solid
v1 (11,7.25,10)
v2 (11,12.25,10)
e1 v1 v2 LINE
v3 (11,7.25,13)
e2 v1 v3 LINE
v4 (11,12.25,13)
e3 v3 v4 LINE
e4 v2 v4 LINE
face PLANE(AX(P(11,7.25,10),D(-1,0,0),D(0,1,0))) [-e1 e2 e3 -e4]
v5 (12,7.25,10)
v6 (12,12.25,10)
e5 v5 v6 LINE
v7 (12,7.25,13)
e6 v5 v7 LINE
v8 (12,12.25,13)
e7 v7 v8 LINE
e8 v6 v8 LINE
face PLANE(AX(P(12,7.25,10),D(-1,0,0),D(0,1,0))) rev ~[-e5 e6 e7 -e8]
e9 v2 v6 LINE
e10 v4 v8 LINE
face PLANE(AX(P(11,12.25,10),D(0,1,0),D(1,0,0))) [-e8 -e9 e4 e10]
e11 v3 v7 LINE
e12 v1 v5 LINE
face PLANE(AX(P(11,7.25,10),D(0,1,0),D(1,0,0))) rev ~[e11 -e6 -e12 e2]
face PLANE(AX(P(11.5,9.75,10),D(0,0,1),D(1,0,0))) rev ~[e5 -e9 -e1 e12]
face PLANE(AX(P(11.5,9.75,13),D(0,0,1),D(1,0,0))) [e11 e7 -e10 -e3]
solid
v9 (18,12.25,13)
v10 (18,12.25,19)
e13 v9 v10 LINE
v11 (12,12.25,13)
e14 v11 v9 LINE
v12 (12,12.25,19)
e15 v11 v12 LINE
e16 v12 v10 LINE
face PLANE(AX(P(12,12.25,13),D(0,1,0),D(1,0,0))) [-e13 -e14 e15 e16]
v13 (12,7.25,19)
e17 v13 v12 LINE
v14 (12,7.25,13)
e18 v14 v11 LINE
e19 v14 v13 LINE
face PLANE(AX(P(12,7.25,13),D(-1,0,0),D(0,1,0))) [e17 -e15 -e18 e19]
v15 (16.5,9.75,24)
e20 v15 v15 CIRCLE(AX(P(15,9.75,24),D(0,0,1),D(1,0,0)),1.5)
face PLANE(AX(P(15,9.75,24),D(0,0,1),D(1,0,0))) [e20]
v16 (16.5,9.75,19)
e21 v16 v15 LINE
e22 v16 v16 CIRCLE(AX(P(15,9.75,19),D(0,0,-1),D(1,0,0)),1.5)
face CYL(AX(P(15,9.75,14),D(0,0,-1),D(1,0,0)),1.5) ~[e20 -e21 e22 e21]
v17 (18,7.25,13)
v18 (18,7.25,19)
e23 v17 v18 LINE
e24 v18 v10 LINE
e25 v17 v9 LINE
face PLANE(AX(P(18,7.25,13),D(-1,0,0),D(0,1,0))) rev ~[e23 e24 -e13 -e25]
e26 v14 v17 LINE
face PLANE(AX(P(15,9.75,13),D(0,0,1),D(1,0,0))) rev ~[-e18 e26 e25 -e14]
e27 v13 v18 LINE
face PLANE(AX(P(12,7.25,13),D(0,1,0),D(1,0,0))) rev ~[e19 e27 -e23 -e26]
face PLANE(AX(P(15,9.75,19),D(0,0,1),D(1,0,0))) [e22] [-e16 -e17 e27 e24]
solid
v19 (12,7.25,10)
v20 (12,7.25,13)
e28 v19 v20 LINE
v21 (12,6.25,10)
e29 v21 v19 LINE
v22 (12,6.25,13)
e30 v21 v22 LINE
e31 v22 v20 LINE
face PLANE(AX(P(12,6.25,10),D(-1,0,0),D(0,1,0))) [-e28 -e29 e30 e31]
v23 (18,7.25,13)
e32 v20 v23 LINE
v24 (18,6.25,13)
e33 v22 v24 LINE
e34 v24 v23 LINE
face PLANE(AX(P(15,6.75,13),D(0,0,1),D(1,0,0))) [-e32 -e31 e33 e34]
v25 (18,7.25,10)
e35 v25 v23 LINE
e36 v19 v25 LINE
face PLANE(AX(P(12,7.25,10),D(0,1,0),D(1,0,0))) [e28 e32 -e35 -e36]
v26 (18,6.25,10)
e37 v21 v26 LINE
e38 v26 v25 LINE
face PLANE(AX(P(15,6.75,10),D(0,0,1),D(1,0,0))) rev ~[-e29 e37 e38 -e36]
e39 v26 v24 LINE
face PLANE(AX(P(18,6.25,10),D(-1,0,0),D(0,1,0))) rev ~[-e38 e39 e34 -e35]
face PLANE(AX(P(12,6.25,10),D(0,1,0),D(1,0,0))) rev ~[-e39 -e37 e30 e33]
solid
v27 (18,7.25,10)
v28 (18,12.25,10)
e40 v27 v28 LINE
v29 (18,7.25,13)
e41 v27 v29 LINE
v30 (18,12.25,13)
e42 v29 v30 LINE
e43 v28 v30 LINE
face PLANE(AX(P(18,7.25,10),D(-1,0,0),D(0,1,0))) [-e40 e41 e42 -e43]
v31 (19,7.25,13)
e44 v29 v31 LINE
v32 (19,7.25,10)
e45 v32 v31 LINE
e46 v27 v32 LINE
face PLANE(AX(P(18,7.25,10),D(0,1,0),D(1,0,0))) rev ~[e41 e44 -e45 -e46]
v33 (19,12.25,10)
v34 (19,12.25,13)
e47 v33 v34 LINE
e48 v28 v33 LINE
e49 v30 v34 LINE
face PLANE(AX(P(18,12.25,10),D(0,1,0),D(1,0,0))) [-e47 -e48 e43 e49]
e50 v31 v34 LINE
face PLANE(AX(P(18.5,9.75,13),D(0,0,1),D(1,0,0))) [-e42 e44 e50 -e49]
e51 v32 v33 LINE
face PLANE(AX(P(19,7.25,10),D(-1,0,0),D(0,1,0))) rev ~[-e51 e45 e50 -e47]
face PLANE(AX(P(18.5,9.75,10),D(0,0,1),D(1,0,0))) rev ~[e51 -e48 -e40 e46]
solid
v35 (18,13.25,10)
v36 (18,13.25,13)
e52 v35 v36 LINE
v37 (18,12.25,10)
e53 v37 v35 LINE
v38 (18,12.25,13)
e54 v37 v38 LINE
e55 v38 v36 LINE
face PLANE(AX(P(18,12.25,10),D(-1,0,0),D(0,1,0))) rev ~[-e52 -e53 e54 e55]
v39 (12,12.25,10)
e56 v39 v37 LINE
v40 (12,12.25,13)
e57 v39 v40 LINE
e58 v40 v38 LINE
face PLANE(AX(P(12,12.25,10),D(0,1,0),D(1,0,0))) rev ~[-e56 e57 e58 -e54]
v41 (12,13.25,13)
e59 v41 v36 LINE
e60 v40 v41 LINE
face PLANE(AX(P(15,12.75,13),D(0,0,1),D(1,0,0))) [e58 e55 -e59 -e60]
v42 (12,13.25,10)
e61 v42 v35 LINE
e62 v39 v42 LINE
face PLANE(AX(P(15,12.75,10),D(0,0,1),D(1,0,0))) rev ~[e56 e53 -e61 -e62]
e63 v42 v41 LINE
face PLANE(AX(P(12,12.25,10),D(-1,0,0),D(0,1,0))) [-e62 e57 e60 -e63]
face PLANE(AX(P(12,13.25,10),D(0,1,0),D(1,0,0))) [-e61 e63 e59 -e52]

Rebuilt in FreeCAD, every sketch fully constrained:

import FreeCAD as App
import Part
import Sketcher
from FreeCAD import Vector
Q = App.Units.Quantity

doc = App.newDocument("Part")
body = doc.addObject("PartDesign::Body", "Body")

sketch1 = body.newObject("Sketcher::SketchObject", "Sketch")
sketch1.AttachmentSupport = (doc.getObject("XY_Plane"), [""])
sketch1.MapMode = "FlatFace"
sketch1.AttachmentOffset = App.Placement(Vector(0, 0, 10), App.Rotation())
sketch1.addGeometry(Part.Circle(Vector(15, 9.8, 0), Vector(0, 0, 1), 1.5), False)
sketch1.addConstraint([
    Sketcher.Constraint("Diameter", 0, Q("3 mm")),
    Sketcher.Constraint("DistanceX", -1, 1, 0, 3, Q("15 mm")),
    Sketcher.Constraint("DistanceY", -1, 1, 0, 3, Q("9.75 mm")),
])
pad1 = body.newObject("PartDesign::Pad", "Pad")
pad1.Profile = sketch1
pad1.Length = 10
body2 = doc.addObject("PartDesign::Body", "Body001")

sketch2 = body2.newObject("Sketcher::SketchObject", "Sketch001")
sketch2.AttachmentSupport = (doc.getObject("XY_Plane001"), [""])
sketch2.MapMode = "FlatFace"
sketch2.AttachmentOffset = App.Placement(Vector(0, 0, 6), App.Rotation())
sketch2.addGeometry([
    Part.LineSegment(Vector(11, 12.2, 0), Vector(11, 7.2, 0)),
    Part.LineSegment(Vector(11, 7.2, 0), Vector(12, 7.2, 0)),
    Part.LineSegment(Vector(12, 7.2, 0), Vector(12, 12.2, 0)),
    Part.LineSegment(Vector(12, 12.2, 0), Vector(11, 12.2, 0)),
], False)
sketch2.addConstraint([
    Sketcher.Constraint("Coincident", 0, 2, 1, 1),
    Sketcher.Constraint("Coincident", 1, 2, 2, 1),
    Sketcher.Constraint("Coincident", 2, 2, 3, 1),
    Sketcher.Constraint("Coincident", 3, 2, 0, 1),
    Sketcher.Constraint("Vertical", 0),
    Sketcher.Constraint("Horizontal", 1),
    Sketcher.Constraint("Vertical", 2),
    Sketcher.Constraint("Horizontal", 3),
    Sketcher.Constraint("DistanceX", 1, 1, 1, 2, Q("1 mm")),
    Sketcher.Constraint("DistanceY", 0, 2, 0, 1, Q("5 mm")),
    Sketcher.Constraint("DistanceX", -1, 1, 0, 2, Q("11 mm")),
    Sketcher.Constraint("DistanceY", -1, 1, 0, 2, Q("7.25 mm")),
])
pad2 = body2.newObject("PartDesign::Pad", "Pad001")
pad2.Profile = sketch2
pad2.Length = 3
body3 = doc.addObject("PartDesign::Body", "Body002")

sketch3 = body3.newObject("Sketcher::SketchObject", "Sketch002")
sketch3.AttachmentSupport = (doc.getObject("XY_Plane002"), [""])
sketch3.MapMode = "FlatFace"
sketch3.AttachmentOffset = App.Placement(Vector(0, 0, 6), App.Rotation())
sketch3.addGeometry([
    Part.LineSegment(Vector(18, 12.2, 0), Vector(18, 7.2, 0)),
    Part.LineSegment(Vector(18, 7.2, 0), Vector(19, 7.2, 0)),
    Part.LineSegment(Vector(19, 7.2, 0), Vector(19, 12.2, 0)),
    Part.LineSegment(Vector(19, 12.2, 0), Vector(18, 12.2, 0)),
], False)
sketch3.addConstraint([
    Sketcher.Constraint("Coincident", 0, 2, 1, 1),
    Sketcher.Constraint("Coincident", 1, 2, 2, 1),
    Sketcher.Constraint("Coincident", 2, 2, 3, 1),
    Sketcher.Constraint("Coincident", 3, 2, 0, 1),
    Sketcher.Constraint("Vertical", 0),
    Sketcher.Constraint("Horizontal", 1),
    Sketcher.Constraint("Vertical", 2),
    Sketcher.Constraint("Horizontal", 3),
    Sketcher.Constraint("DistanceX", 1, 1, 1, 2, Q("1 mm")),
    Sketcher.Constraint("DistanceY", 0, 2, 0, 1, Q("5 mm")),
    Sketcher.Constraint("DistanceX", -1, 1, 0, 2, Q("18 mm")),
    Sketcher.Constraint("DistanceY", -1, 1, 0, 2, Q("7.25 mm")),
])
pad3 = body3.newObject("PartDesign::Pad", "Pad002")
pad3.Profile = sketch3
pad3.Length = 3
body4 = doc.addObject("PartDesign::Body", "Body003")

sketch4 = body4.newObject("Sketcher::SketchObject", "Sketch003")
sketch4.AttachmentSupport = (doc.getObject("XY_Plane003"), [""])
sketch4.MapMode = "FlatFace"
sketch4.AttachmentOffset = App.Placement(Vector(0, 0, 6), App.Rotation())
sketch4.addGeometry([
    Part.LineSegment(Vector(12, 7.2, 0), Vector(12, 6.2, 0)),
    Part.LineSegment(Vector(12, 6.2, 0), Vector(18, 6.2, 0)),
    Part.LineSegment(Vector(18, 6.2, 0), Vector(18, 7.2, 0)),
    Part.LineSegment(Vector(18, 7.2, 0), Vector(12, 7.2, 0)),
], False)
sketch4.addConstraint([
    Sketcher.Constraint("Coincident", 0, 2, 1, 1),
    Sketcher.Constraint("Coincident", 1, 2, 2, 1),
    Sketcher.Constraint("Coincident", 2, 2, 3, 1),
    Sketcher.Constraint("Coincident", 3, 2, 0, 1),
    Sketcher.Constraint("Vertical", 0),
    Sketcher.Constraint("Horizontal", 1),
    Sketcher.Constraint("Vertical", 2),
    Sketcher.Constraint("Horizontal", 3),
    Sketcher.Constraint("DistanceX", 1, 1, 1, 2, Q("6 mm")),
    Sketcher.Constraint("DistanceY", 0, 2, 0, 1, Q("1 mm")),
    Sketcher.Constraint("DistanceX", -1, 1, 0, 2, Q("12 mm")),
    Sketcher.Constraint("DistanceY", -1, 1, 0, 2, Q("6.25 mm")),
])
pad4 = body4.newObject("PartDesign::Pad", "Pad003")
pad4.Profile = sketch4
pad4.Length = 3
body5 = doc.addObject("PartDesign::Body", "Body004")

sketch5 = body5.newObject("Sketcher::SketchObject", "Sketch004")
sketch5.AttachmentSupport = (doc.getObject("XY_Plane004"), [""])
sketch5.MapMode = "FlatFace"
sketch5.AttachmentOffset = App.Placement(Vector(0, 0, 6), App.Rotation())
sketch5.addGeometry([
    Part.LineSegment(Vector(12, 13.2, 0), Vector(12, 12.2, 0)),
    Part.LineSegment(Vector(12, 12.2, 0), Vector(18, 12.2, 0)),
    Part.LineSegment(Vector(18, 12.2, 0), Vector(18, 13.2, 0)),
    Part.LineSegment(Vector(18, 13.2, 0), Vector(12, 13.2, 0)),
], False)
sketch5.addConstraint([
    Sketcher.Constraint("Coincident", 0, 2, 1, 1),
    Sketcher.Constraint("Coincident", 1, 2, 2, 1),
    Sketcher.Constraint("Coincident", 2, 2, 3, 1),
    Sketcher.Constraint("Coincident", 3, 2, 0, 1),
    Sketcher.Constraint("Vertical", 0),
    Sketcher.Constraint("Horizontal", 1),
    Sketcher.Constraint("Vertical", 2),
    Sketcher.Constraint("Horizontal", 3),
    Sketcher.Constraint("DistanceX", 1, 1, 1, 2, Q("6 mm")),
    Sketcher.Constraint("DistanceY", 0, 2, 0, 1, Q("1 mm")),
    Sketcher.Constraint("DistanceX", -1, 1, 0, 2, Q("12 mm")),
    Sketcher.Constraint("DistanceY", -1, 1, 0, 2, Q("12.25 mm")),
])
pad5 = body5.newObject("PartDesign::Pad", "Pad004")
pad5.Profile = sketch5
pad5.Length = 3
body6 = doc.addObject("PartDesign::Body", "Body005")
body6.AllowCompound = True

sketch6 = body6.newObject("Sketcher::SketchObject", "Sketch005")
sketch6.AttachmentSupport = (doc.getObject("XY_Plane005"), [""])
sketch6.MapMode = "FlatFace"
sketch6.AttachmentOffset = App.Placement(Vector(0, 0, 9), App.Rotation())
sketch6.addGeometry([
    Part.LineSegment(Vector(12, 12, 0), Vector(12, 7, 0)),
    Part.LineSegment(Vector(12, 7, 0), Vector(18, 7, 0)),
    Part.LineSegment(Vector(18, 7, 0), Vector(18, 12, 0)),
    Part.LineSegment(Vector(18, 12, 0), Vector(12, 12, 0)),
], False)
sketch6.addConstraint([
    Sketcher.Constraint("Coincident", 0, 2, 1, 1),
    Sketcher.Constraint("Coincident", 1, 2, 2, 1),
    Sketcher.Constraint("Coincident", 2, 2, 3, 1),
    Sketcher.Constraint("Coincident", 3, 2, 0, 1),
    Sketcher.Constraint("Vertical", 0),
    Sketcher.Constraint("Horizontal", 1),
    Sketcher.Constraint("Vertical", 2),
    Sketcher.Constraint("Horizontal", 3),
    Sketcher.Constraint("DistanceX", 1, 1, 1, 2, Q("6 mm")),
    Sketcher.Constraint("DistanceY", 0, 2, 0, 1, Q("5 mm")),
    Sketcher.Constraint("DistanceX", -1, 1, 0, 2, Q("12 mm")),
    Sketcher.Constraint("DistanceY", -1, 1, 0, 2, Q("7.25 mm")),
])
pad6 = body6.newObject("PartDesign::Pad", "Pad005")
pad6.Profile = sketch6
pad6.Length = 6
doc.recompute()

boolean = body6.newObject("PartDesign::Boolean", "Boolean")
boolean.Type = "Fuse"
boolean.addObjects([body2])
doc.recompute()

boolean2 = body6.newObject("PartDesign::Boolean", "Boolean001")
boolean2.Type = "Fuse"
boolean2.addObjects([body3])
doc.recompute()

boolean3 = body6.newObject("PartDesign::Boolean", "Boolean002")
boolean3.Type = "Fuse"
boolean3.addObjects([body4])
doc.recompute()

boolean4 = body6.newObject("PartDesign::Boolean", "Boolean003")
boolean4.Type = "Fuse"
boolean4.addObjects([body5])
doc.recompute()

boolean5 = body6.newObject("PartDesign::Boolean", "Boolean004")
boolean5.Type = "Fuse"
boolean5.addObjects([body])
body7 = doc.addObject("PartDesign::Body", "Body006")
body7.AllowCompound = True
doc.recompute()

body6.Placement = App.Placement(Vector(0, 0, 4), App.Rotation(Vector(0, 0, 1), 0))
boolean6 = body7.newObject("PartDesign::Boolean", "Boolean005")
boolean6.Type = "Fuse"
boolean6.addObjects([body6])

doc.recompute()
